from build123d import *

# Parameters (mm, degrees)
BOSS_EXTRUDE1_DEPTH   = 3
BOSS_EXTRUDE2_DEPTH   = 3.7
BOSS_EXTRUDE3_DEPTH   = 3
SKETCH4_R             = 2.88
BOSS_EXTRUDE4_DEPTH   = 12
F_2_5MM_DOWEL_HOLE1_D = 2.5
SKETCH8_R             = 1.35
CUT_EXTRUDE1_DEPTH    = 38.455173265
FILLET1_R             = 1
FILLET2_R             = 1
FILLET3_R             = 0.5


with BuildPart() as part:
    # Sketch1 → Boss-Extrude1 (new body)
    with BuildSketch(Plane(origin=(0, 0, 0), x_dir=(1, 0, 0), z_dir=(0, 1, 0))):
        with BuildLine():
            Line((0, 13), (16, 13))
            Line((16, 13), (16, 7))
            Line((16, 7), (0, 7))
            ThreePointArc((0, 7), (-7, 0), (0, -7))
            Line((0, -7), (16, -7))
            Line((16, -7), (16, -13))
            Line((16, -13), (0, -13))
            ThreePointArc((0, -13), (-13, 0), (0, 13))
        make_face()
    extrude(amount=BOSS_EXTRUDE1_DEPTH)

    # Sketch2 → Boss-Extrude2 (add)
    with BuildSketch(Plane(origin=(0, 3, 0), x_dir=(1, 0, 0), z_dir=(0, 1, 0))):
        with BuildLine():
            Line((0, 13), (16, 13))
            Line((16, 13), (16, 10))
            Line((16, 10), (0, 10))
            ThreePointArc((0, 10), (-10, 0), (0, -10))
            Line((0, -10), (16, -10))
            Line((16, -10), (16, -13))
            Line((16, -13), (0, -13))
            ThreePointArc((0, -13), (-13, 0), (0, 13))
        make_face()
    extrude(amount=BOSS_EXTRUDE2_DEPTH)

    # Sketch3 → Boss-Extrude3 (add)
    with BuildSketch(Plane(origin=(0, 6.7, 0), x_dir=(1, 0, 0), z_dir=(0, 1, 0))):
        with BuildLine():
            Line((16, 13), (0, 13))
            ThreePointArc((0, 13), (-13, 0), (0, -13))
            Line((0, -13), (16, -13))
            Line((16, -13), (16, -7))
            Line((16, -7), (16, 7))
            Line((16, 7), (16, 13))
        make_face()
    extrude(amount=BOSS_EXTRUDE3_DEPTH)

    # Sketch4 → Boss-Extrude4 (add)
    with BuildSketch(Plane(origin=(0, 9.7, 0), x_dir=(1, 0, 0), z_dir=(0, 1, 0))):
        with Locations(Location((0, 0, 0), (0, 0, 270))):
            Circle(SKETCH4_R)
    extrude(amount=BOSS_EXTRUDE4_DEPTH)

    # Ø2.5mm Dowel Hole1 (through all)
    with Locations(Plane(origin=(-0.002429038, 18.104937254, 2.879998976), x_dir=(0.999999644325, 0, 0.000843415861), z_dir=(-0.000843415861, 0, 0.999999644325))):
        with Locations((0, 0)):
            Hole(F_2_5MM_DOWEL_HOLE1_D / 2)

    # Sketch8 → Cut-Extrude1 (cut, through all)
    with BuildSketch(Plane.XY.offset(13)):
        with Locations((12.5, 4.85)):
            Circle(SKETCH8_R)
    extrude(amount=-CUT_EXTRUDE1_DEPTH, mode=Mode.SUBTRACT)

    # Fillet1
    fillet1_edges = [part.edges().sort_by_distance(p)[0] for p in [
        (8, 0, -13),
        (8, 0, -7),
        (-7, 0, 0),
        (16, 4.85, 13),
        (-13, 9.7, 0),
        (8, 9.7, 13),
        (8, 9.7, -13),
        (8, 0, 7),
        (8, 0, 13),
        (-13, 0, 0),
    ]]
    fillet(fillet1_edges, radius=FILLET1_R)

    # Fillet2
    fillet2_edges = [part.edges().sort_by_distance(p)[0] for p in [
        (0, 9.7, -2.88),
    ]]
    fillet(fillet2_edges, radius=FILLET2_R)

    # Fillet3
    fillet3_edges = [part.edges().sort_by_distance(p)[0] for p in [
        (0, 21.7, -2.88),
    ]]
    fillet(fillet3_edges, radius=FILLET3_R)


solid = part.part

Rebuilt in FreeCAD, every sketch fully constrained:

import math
import FreeCAD as App
import Part
import Sketcher
from FreeCAD import Vector
Q = App.Units.Quantity


def edges_at(feature, points):
    """Names of the edges that pass closest to the given points."""
    edges = feature.Shape.Edges
    near = lambda p: min(range(len(edges)), key=lambda i: edges[i].distToShape(Part.Vertex(*p))[0])
    return sorted({f"Edge{near(p) + 1}" for p in points})

doc = App.newDocument("Part")
body = doc.addObject("PartDesign::Body", "Body")

# Sketch on XZ plane
sketch1 = body.newObject("Sketcher::SketchObject", "Sketch")
sketch1.AttachmentSupport = (doc.getObject("XZ_Plane"), [""])
sketch1.MapMode = "FlatFace"
sketch1.addGeometry([
    Part.LineSegment(Vector(16, -13, 0), Vector(0, -13, 0)),  # 0
    Part.ArcOfCircle(Part.Circle(Vector(0, 0, 0), Vector(0, 0, 1), 13), math.radians(90), math.radians(270)),  # 1
    Part.LineSegment(Vector(0, 13, 0), Vector(16, 13, 0)),  # 2
    Part.LineSegment(Vector(16, 13, 0), Vector(16, 7, 0)),  # 3
    Part.LineSegment(Vector(16, 7, 0), Vector(0, 7, 0)),  # 4
    Part.ArcOfCircle(Part.Circle(Vector(0, 0, 0), Vector(0, 0, 1), 7), math.radians(90), math.radians(270)),  # 5
    Part.LineSegment(Vector(0, -7, 0), Vector(16, -7, 0)),  # 6
    Part.LineSegment(Vector(16, -7, 0), Vector(16, -13, 0)),  # 7
], False)
sketch1.addConstraint([
    Sketcher.Constraint("Tangent", 0, 2, 1, 2),
    Sketcher.Constraint("Tangent", 1, 1, 2, 1),
    Sketcher.Constraint("Coincident", 2, 2, 3, 1),
    Sketcher.Constraint("Coincident", 3, 2, 4, 1),
    Sketcher.Constraint("Tangent", 4, 2, 5, 1),
    Sketcher.Constraint("Tangent", 5, 2, 6, 1),
    Sketcher.Constraint("Coincident", 6, 2, 7, 1),
    Sketcher.Constraint("Coincident", 7, 2, 0, 1),
    Sketcher.Constraint("Horizontal", 0),
    Sketcher.Constraint("Horizontal", 2),
    Sketcher.Constraint("Vertical", 3),
    Sketcher.Constraint("Horizontal", 4),
    Sketcher.Constraint("Horizontal", 6),
    Sketcher.Constraint("Vertical", 7),
    Sketcher.Constraint("Coincident", 1, 3, -1, 1),
    Sketcher.Constraint("Coincident", 5, 3, -1, 1),
    Sketcher.Constraint("Vertical", 3, 2, 6, 2),
    Sketcher.Constraint("Radius", 1, Q("13 mm")),
    Sketcher.Constraint("Radius", 5, Q("7 mm")),
    Sketcher.Constraint("DistanceX", 0, 2, 0, 1, Q("16 mm")),
])
pad1 = body.newObject("PartDesign::Pad", "Pad")
pad1.Profile = sketch1
pad1.Length = 3
pad1.Reversed = True

# Sketch on XZ plane
sketch2 = body.newObject("Sketcher::SketchObject", "Sketch001")
sketch2.AttachmentSupport = (doc.getObject("XZ_Plane"), [""])
sketch2.MapMode = "FlatFace"
sketch2.AttachmentOffset = App.Placement(Vector(0, 0, -3), App.Rotation())
sketch2.addGeometry([
    Part.LineSegment(Vector(16, -13, 0), Vector(0, -13, 0)),  # 0
    Part.ArcOfCircle(Part.Circle(Vector(0, 0, 0), Vector(0, 0, 1), 13), math.radians(90), math.radians(270)),  # 1
    Part.LineSegment(Vector(0, 13, 0), Vector(16, 13, 0)),  # 2
    Part.LineSegment(Vector(16, 13, 0), Vector(16, 10, 0)),  # 3
    Part.LineSegment(Vector(16, 10, 0), Vector(0, 10, 0)),  # 4
    Part.ArcOfCircle(Part.Circle(Vector(0, 0, 0), Vector(0, 0, 1), 10), math.radians(90), math.radians(270)),  # 5
    Part.LineSegment(Vector(0, -10, 0), Vector(16, -10, 0)),  # 6
    Part.LineSegment(Vector(16, -10, 0), Vector(16, -13, 0)),  # 7
], False)
sketch2.addConstraint([
    Sketcher.Constraint("Tangent", 0, 2, 1, 2),
    Sketcher.Constraint("Tangent", 1, 1, 2, 1),
    Sketcher.Constraint("Coincident", 2, 2, 3, 1),
    Sketcher.Constraint("Coincident", 3, 2, 4, 1),
    Sketcher.Constraint("Tangent", 4, 2, 5, 1),
    Sketcher.Constraint("Tangent", 5, 2, 6, 1),
    Sketcher.Constraint("Coincident", 6, 2, 7, 1),
    Sketcher.Constraint("Coincident", 7, 2, 0, 1),
    Sketcher.Constraint("Horizontal", 0),
    Sketcher.Constraint("Horizontal", 2),
    Sketcher.Constraint("Vertical", 3),
    Sketcher.Constraint("Horizontal", 4),
    Sketcher.Constraint("Horizontal", 6),
    Sketcher.Constraint("Vertical", 7),
    Sketcher.Constraint("Coincident", 1, 3, -1, 1),
    Sketcher.Constraint("Coincident", 5, 3, -1, 1),
    Sketcher.Constraint("Vertical", 3, 2, 6, 2),
    Sketcher.Constraint("Radius", 1, Q("13 mm")),
    Sketcher.Constraint("Radius", 5, Q("10 mm")),
    Sketcher.Constraint("DistanceX", 0, 2, 0, 1, Q("16 mm")),
])
pad2 = body.newObject("PartDesign::Pad", "Pad001")
pad2.Profile = sketch2
pad2.Length = 3.7
pad2.Reversed = True

# Sketch on XZ plane
sketch3 = body.newObject("Sketcher::SketchObject", "Sketch002")
sketch3.AttachmentSupport = (doc.getObject("XZ_Plane"), [""])
sketch3.MapMode = "FlatFace"
sketch3.AttachmentOffset = App.Placement(Vector(0, 0, -6.7), App.Rotation())
sketch3.addGeometry([
    Part.LineSegment(Vector(16, -13, 0), Vector(0, -13, 0)),
    Part.ArcOfCircle(Part.Circle(Vector(0, 0, 0), Vector(0, 0, 1), 13), math.radians(90), math.radians(270)),
    Part.LineSegment(Vector(0, 13, 0), Vector(16, 13, 0)),
    Part.LineSegment(Vector(16, 13, 0), Vector(16, -13, 0)),
], False)
sketch3.addConstraint([
    Sketcher.Constraint("Tangent", 0, 2, 1, 2),
    Sketcher.Constraint("Tangent", 1, 1, 2, 1),
    Sketcher.Constraint("Coincident", 2, 2, 3, 1),
    Sketcher.Constraint("Coincident", 3, 2, 0, 1),
    Sketcher.Constraint("Horizontal", 0),
    Sketcher.Constraint("Horizontal", 2),
    Sketcher.Constraint("Vertical", 3),
    Sketcher.Constraint("Coincident", 1, 3, -1, 1),
    Sketcher.Constraint("Radius", 1, Q("13 mm")),
    Sketcher.Constraint("DistanceX", 0, 2, 0, 1, Q("16 mm")),
])
pad3 = body.newObject("PartDesign::Pad", "Pad002")
pad3.Profile = sketch3
pad3.Length = 3
pad3.Reversed = True

# Sketch on XZ plane
sketch4 = body.newObject("Sketcher::SketchObject", "Sketch003")
sketch4.AttachmentSupport = (doc.getObject("XZ_Plane"), [""])
sketch4.MapMode = "FlatFace"
sketch4.AttachmentOffset = App.Placement(Vector(0, 0, -9.7), App.Rotation())
sketch4.addGeometry(Part.Circle(Vector(0, 0, 0), Vector(0, 0, 1), 2.9), False)
sketch4.addConstraint([
    Sketcher.Constraint("Coincident", 0, 3, -1, 1),
    Sketcher.Constraint("Diameter", 0, Q("5.76 mm")),
])
pad4 = body.newObject("PartDesign::Pad", "Pad003")
pad4.Profile = sketch4
pad4.Length = 12
pad4.Reversed = True

# Sketch on an angled plane
sketch5 = body.newObject("Sketcher::SketchObject", "Sketch004")
sketch5.Placement = App.Placement(Vector(-0.002429, 0, 2.879999), App.Rotation(Vector(0.999999644, 0, 0.000843416), Vector(0, 0.999999999, 0), Vector(-0.000843416, 0, 0.999999644), "ZXY"))
sketch5.addGeometry(Part.Circle(Vector(0, 18.1, 0), Vector(0, 0, 1), 1.2), False)
sketch5.addConstraint([
    Sketcher.Constraint("PointOnObject", 0, 3, -2),
    Sketcher.Constraint("Diameter", 0, Q("2.5 mm")),
    Sketcher.Constraint("DistanceY", -1, 1, 0, 3, Q("18.104937 mm")),
])
doc.recompute()
hole = body.newObject("PartDesign::Hole", "Hole")
hole.Profile = sketch5
hole.ThreadType = "None"
hole.Diameter = 2.5
hole.DepthType = "ThroughAll"

# Sketch on XY plane
sketch6 = body.newObject("Sketcher::SketchObject", "Sketch005")
sketch6.AttachmentSupport = (doc.getObject("XY_Plane"), [""])
sketch6.MapMode = "FlatFace"
sketch6.AttachmentOffset = App.Placement(Vector(0, 0, 13), App.Rotation())
sketch6.addGeometry(Part.Circle(Vector(12.5, 4.8, 0), Vector(0, 0, 1), 1.4), False)
sketch6.addConstraint([
    Sketcher.Constraint("Diameter", 0, Q("2.7 mm")),
    Sketcher.Constraint("DistanceX", -1, 1, 0, 3, Q("12.5 mm")),
    Sketcher.Constraint("DistanceY", -1, 1, 0, 3, Q("4.85 mm")),
])
pocket1 = body.newObject("PartDesign::Pocket", "Pocket")
pocket1.Profile = sketch6
pocket1.Type = "ThroughAll"
doc.recompute()

fillet = body.newObject("PartDesign::Fillet", "Fillet")
fillet.Base = (pocket1, edges_at(pocket1, [
    (8, 0, -13),
    (8, 0, -7),
    (-7, 0, 0),
    (16, 4.85, 13),
    (-13, 9.7, 0),
    (8, 9.7, 13),
    (8, 9.7, -13),
    (8, 0, 7),
    (8, 0, 13),
    (-13, 0, 0),
]))
fillet.Radius = 1
doc.recompute()

fillet2 = body.newObject("PartDesign::Fillet", "Fillet001")
fillet2.Base = (fillet, edges_at(fillet, [(0, 9.7, -2.88)]))
fillet2.Radius = 1
doc.recompute()

fillet3 = body.newObject("PartDesign::Fillet", "Fillet002")
fillet3.Base = (fillet2, edges_at(fillet2, [(0, 21.7, -2.88)]))
fillet3.Radius = 0.5

doc.recompute()
